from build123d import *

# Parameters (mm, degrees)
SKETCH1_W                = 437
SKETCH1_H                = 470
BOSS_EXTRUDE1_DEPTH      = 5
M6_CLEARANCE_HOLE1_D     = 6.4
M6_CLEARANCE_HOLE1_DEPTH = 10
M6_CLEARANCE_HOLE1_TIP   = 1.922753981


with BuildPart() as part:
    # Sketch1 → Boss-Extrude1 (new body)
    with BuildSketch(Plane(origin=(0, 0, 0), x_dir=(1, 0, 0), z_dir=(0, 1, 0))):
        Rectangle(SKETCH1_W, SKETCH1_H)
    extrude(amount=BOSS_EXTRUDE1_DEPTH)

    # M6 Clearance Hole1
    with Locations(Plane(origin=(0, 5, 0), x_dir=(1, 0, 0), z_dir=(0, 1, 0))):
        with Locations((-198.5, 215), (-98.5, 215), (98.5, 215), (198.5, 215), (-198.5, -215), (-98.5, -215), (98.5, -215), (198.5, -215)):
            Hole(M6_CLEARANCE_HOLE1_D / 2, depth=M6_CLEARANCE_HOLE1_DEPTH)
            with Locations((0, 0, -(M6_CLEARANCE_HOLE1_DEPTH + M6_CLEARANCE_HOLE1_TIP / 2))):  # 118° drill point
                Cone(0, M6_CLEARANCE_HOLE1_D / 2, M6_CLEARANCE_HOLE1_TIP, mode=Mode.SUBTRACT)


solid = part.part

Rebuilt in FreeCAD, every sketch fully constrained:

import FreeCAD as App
import Part
import Sketcher

V = App.Vector
Q = App.Units.Quantity


def add_polygon(sketch, points):
    """Adds a closed chain of lines whose ends are joined by coincident constraints."""
    first, n = sketch.GeometryCount, len(points)
    for a, b in zip(points, points[1:] + points[:1]):
        sketch.addGeometry(Part.LineSegment(App.Vector(*a, 0), App.Vector(*b, 0)), False)
    for i in range(n):
        sketch.addConstraint(Sketcher.Constraint("Coincident", first + i, 2, first + (i + 1) % n, 1))

doc = App.newDocument("Part")
params = doc.addObject("Spreadsheet::Sheet", "Params")
for row, (alias, value) in enumerate([
    ("sketch1_width", "437 mm"),
    ("sketch1_height", "470 mm"),
    ("pad1_length", "5 mm"),
    ("sketch2_diameter", "6.4 mm"),
    ("hole_diameter", "6.4 mm"),
    ("hole_depth", "10 mm"),
], start=1):
    params.set(f"A{row}", alias)
    params.set(f"B{row}", "=" + value)
    params.setAlias(f"B{row}", alias)

body = doc.addObject("PartDesign::Body", "Body")

sketch1 = body.newObject("Sketcher::SketchObject", "Sketch")
sketch1.AttachmentSupport = (doc.getObject("XZ_Plane"), [""])
sketch1.MapMode = "FlatFace"
add_polygon(sketch1, [(-218, -235), (-218, 235), (218, 235), (218, -235)])
sketch1.addConstraint(Sketcher.Constraint("Vertical", 0))
sketch1.addConstraint(Sketcher.Constraint("Horizontal", 1))
sketch1.addConstraint(Sketcher.Constraint("Vertical", 2))
sketch1.addConstraint(Sketcher.Constraint("Horizontal", 3))
sketch1.addConstraint(Sketcher.Constraint("Symmetric", 0, 2, 2, 2, -1, 1))
sketch1.addConstraint(Sketcher.Constraint("DistanceX", 1, 1, 1, 2, Q("437 mm")))
sketch1.addConstraint(Sketcher.Constraint("DistanceY", 0, 1, 0, 2, Q("470 mm")))
sketch1.setExpression("Constraints[9]", "Params.sketch1_width")
sketch1.setExpression("Constraints[10]", "Params.sketch1_height")
pad1 = body.newObject("PartDesign::Pad", "Pad")
pad1.Profile = sketch1
pad1.setExpression("Length", "Params.pad1_length")
pad1.Reversed = True

sketch2 = body.newObject("Sketcher::SketchObject", "Sketch001")
sketch2.AttachmentSupport = (doc.getObject("XZ_Plane"), [""])
sketch2.MapMode = "FlatFace"
sketch2.AttachmentOffset = App.Placement(V(0, 0, -5), App.Rotation())
sketch2.addGeometry(Part.Circle(V(-198.5, -215, 0), V(0, 0, 1), 3.2), False)
sketch2.addGeometry(Part.Circle(V(-98.5, -215, 0), V(0, 0, 1), 3.2), False)
sketch2.addGeometry(Part.Circle(V(98.5, -215, 0), V(0, 0, 1), 3.2), False)
sketch2.addGeometry(Part.Circle(V(198.5, -215, 0), V(0, 0, 1), 3.2), False)
sketch2.addGeometry(Part.Circle(V(-198.5, 215, 0), V(0, 0, 1), 3.2), False)
sketch2.addGeometry(Part.Circle(V(-98.5, 215, 0), V(0, 0, 1), 3.2), False)
sketch2.addGeometry(Part.Circle(V(98.5, 215, 0), V(0, 0, 1), 3.2), False)
sketch2.addGeometry(Part.Circle(V(198.5, 215, 0), V(0, 0, 1), 3.2), False)
sketch2.addConstraint(Sketcher.Constraint("Equal", 0, 1))
sketch2.addConstraint(Sketcher.Constraint("Equal", 1, 2))
sketch2.addConstraint(Sketcher.Constraint("Equal", 2, 3))
sketch2.addConstraint(Sketcher.Constraint("Equal", 3, 4))
sketch2.addConstraint(Sketcher.Constraint("Equal", 4, 5))
sketch2.addConstraint(Sketcher.Constraint("Equal", 5, 6))
sketch2.addConstraint(Sketcher.Constraint("Equal", 6, 7))
sketch2.addConstraint(Sketcher.Constraint("Symmetric", 3, 3, 4, 3, -1, 1))
sketch2.addConstraint(Sketcher.Constraint("Symmetric", 2, 3, 5, 3, -1, 1))
sketch2.addConstraint(Sketcher.Constraint("Symmetric", 1, 3, 6, 3, -1, 1))
sketch2.addConstraint(Sketcher.Constraint("Symmetric", 0, 3, 7, 3, -1, 1))
sketch2.addConstraint(Sketcher.Constraint("Symmetric", 1, 3, 2, 3, -2))
sketch2.addConstraint(Sketcher.Constraint("Symmetric", 0, 3, 3, 3, -2))
sketch2.addConstraint(Sketcher.Constraint("Horizontal", 0, 3, 1, 3))
sketch2.addConstraint(Sketcher.Constraint("Diameter", 0, Q("6.4 mm")))
sketch2.addConstraint(Sketcher.Constraint("DistanceY", 0, 3, -1, 1, Q("215 mm")))
sketch2.addConstraint(Sketcher.Constraint("DistanceX", 0, 3, 1, 3, Q("100 mm")))
sketch2.addConstraint(Sketcher.Constraint("DistanceX", 1, 3, 2, 3, Q("197 mm")))
sketch2.setExpression("Constraints[14]", "Params.sketch2_diameter")
doc.recompute()
hole = body.newObject("PartDesign::Hole", "Hole")
hole.Profile = sketch2
hole.ThreadType = "None"
hole.setExpression("Diameter", "Params.hole_diameter")
hole.DepthType = "Dimension"
hole.setExpression("Depth", "Params.hole_depth")
hole.DrillPoint = "Angled"
hole.DrillPointAngle = 118
hole.Reversed = True

doc.recompute()
